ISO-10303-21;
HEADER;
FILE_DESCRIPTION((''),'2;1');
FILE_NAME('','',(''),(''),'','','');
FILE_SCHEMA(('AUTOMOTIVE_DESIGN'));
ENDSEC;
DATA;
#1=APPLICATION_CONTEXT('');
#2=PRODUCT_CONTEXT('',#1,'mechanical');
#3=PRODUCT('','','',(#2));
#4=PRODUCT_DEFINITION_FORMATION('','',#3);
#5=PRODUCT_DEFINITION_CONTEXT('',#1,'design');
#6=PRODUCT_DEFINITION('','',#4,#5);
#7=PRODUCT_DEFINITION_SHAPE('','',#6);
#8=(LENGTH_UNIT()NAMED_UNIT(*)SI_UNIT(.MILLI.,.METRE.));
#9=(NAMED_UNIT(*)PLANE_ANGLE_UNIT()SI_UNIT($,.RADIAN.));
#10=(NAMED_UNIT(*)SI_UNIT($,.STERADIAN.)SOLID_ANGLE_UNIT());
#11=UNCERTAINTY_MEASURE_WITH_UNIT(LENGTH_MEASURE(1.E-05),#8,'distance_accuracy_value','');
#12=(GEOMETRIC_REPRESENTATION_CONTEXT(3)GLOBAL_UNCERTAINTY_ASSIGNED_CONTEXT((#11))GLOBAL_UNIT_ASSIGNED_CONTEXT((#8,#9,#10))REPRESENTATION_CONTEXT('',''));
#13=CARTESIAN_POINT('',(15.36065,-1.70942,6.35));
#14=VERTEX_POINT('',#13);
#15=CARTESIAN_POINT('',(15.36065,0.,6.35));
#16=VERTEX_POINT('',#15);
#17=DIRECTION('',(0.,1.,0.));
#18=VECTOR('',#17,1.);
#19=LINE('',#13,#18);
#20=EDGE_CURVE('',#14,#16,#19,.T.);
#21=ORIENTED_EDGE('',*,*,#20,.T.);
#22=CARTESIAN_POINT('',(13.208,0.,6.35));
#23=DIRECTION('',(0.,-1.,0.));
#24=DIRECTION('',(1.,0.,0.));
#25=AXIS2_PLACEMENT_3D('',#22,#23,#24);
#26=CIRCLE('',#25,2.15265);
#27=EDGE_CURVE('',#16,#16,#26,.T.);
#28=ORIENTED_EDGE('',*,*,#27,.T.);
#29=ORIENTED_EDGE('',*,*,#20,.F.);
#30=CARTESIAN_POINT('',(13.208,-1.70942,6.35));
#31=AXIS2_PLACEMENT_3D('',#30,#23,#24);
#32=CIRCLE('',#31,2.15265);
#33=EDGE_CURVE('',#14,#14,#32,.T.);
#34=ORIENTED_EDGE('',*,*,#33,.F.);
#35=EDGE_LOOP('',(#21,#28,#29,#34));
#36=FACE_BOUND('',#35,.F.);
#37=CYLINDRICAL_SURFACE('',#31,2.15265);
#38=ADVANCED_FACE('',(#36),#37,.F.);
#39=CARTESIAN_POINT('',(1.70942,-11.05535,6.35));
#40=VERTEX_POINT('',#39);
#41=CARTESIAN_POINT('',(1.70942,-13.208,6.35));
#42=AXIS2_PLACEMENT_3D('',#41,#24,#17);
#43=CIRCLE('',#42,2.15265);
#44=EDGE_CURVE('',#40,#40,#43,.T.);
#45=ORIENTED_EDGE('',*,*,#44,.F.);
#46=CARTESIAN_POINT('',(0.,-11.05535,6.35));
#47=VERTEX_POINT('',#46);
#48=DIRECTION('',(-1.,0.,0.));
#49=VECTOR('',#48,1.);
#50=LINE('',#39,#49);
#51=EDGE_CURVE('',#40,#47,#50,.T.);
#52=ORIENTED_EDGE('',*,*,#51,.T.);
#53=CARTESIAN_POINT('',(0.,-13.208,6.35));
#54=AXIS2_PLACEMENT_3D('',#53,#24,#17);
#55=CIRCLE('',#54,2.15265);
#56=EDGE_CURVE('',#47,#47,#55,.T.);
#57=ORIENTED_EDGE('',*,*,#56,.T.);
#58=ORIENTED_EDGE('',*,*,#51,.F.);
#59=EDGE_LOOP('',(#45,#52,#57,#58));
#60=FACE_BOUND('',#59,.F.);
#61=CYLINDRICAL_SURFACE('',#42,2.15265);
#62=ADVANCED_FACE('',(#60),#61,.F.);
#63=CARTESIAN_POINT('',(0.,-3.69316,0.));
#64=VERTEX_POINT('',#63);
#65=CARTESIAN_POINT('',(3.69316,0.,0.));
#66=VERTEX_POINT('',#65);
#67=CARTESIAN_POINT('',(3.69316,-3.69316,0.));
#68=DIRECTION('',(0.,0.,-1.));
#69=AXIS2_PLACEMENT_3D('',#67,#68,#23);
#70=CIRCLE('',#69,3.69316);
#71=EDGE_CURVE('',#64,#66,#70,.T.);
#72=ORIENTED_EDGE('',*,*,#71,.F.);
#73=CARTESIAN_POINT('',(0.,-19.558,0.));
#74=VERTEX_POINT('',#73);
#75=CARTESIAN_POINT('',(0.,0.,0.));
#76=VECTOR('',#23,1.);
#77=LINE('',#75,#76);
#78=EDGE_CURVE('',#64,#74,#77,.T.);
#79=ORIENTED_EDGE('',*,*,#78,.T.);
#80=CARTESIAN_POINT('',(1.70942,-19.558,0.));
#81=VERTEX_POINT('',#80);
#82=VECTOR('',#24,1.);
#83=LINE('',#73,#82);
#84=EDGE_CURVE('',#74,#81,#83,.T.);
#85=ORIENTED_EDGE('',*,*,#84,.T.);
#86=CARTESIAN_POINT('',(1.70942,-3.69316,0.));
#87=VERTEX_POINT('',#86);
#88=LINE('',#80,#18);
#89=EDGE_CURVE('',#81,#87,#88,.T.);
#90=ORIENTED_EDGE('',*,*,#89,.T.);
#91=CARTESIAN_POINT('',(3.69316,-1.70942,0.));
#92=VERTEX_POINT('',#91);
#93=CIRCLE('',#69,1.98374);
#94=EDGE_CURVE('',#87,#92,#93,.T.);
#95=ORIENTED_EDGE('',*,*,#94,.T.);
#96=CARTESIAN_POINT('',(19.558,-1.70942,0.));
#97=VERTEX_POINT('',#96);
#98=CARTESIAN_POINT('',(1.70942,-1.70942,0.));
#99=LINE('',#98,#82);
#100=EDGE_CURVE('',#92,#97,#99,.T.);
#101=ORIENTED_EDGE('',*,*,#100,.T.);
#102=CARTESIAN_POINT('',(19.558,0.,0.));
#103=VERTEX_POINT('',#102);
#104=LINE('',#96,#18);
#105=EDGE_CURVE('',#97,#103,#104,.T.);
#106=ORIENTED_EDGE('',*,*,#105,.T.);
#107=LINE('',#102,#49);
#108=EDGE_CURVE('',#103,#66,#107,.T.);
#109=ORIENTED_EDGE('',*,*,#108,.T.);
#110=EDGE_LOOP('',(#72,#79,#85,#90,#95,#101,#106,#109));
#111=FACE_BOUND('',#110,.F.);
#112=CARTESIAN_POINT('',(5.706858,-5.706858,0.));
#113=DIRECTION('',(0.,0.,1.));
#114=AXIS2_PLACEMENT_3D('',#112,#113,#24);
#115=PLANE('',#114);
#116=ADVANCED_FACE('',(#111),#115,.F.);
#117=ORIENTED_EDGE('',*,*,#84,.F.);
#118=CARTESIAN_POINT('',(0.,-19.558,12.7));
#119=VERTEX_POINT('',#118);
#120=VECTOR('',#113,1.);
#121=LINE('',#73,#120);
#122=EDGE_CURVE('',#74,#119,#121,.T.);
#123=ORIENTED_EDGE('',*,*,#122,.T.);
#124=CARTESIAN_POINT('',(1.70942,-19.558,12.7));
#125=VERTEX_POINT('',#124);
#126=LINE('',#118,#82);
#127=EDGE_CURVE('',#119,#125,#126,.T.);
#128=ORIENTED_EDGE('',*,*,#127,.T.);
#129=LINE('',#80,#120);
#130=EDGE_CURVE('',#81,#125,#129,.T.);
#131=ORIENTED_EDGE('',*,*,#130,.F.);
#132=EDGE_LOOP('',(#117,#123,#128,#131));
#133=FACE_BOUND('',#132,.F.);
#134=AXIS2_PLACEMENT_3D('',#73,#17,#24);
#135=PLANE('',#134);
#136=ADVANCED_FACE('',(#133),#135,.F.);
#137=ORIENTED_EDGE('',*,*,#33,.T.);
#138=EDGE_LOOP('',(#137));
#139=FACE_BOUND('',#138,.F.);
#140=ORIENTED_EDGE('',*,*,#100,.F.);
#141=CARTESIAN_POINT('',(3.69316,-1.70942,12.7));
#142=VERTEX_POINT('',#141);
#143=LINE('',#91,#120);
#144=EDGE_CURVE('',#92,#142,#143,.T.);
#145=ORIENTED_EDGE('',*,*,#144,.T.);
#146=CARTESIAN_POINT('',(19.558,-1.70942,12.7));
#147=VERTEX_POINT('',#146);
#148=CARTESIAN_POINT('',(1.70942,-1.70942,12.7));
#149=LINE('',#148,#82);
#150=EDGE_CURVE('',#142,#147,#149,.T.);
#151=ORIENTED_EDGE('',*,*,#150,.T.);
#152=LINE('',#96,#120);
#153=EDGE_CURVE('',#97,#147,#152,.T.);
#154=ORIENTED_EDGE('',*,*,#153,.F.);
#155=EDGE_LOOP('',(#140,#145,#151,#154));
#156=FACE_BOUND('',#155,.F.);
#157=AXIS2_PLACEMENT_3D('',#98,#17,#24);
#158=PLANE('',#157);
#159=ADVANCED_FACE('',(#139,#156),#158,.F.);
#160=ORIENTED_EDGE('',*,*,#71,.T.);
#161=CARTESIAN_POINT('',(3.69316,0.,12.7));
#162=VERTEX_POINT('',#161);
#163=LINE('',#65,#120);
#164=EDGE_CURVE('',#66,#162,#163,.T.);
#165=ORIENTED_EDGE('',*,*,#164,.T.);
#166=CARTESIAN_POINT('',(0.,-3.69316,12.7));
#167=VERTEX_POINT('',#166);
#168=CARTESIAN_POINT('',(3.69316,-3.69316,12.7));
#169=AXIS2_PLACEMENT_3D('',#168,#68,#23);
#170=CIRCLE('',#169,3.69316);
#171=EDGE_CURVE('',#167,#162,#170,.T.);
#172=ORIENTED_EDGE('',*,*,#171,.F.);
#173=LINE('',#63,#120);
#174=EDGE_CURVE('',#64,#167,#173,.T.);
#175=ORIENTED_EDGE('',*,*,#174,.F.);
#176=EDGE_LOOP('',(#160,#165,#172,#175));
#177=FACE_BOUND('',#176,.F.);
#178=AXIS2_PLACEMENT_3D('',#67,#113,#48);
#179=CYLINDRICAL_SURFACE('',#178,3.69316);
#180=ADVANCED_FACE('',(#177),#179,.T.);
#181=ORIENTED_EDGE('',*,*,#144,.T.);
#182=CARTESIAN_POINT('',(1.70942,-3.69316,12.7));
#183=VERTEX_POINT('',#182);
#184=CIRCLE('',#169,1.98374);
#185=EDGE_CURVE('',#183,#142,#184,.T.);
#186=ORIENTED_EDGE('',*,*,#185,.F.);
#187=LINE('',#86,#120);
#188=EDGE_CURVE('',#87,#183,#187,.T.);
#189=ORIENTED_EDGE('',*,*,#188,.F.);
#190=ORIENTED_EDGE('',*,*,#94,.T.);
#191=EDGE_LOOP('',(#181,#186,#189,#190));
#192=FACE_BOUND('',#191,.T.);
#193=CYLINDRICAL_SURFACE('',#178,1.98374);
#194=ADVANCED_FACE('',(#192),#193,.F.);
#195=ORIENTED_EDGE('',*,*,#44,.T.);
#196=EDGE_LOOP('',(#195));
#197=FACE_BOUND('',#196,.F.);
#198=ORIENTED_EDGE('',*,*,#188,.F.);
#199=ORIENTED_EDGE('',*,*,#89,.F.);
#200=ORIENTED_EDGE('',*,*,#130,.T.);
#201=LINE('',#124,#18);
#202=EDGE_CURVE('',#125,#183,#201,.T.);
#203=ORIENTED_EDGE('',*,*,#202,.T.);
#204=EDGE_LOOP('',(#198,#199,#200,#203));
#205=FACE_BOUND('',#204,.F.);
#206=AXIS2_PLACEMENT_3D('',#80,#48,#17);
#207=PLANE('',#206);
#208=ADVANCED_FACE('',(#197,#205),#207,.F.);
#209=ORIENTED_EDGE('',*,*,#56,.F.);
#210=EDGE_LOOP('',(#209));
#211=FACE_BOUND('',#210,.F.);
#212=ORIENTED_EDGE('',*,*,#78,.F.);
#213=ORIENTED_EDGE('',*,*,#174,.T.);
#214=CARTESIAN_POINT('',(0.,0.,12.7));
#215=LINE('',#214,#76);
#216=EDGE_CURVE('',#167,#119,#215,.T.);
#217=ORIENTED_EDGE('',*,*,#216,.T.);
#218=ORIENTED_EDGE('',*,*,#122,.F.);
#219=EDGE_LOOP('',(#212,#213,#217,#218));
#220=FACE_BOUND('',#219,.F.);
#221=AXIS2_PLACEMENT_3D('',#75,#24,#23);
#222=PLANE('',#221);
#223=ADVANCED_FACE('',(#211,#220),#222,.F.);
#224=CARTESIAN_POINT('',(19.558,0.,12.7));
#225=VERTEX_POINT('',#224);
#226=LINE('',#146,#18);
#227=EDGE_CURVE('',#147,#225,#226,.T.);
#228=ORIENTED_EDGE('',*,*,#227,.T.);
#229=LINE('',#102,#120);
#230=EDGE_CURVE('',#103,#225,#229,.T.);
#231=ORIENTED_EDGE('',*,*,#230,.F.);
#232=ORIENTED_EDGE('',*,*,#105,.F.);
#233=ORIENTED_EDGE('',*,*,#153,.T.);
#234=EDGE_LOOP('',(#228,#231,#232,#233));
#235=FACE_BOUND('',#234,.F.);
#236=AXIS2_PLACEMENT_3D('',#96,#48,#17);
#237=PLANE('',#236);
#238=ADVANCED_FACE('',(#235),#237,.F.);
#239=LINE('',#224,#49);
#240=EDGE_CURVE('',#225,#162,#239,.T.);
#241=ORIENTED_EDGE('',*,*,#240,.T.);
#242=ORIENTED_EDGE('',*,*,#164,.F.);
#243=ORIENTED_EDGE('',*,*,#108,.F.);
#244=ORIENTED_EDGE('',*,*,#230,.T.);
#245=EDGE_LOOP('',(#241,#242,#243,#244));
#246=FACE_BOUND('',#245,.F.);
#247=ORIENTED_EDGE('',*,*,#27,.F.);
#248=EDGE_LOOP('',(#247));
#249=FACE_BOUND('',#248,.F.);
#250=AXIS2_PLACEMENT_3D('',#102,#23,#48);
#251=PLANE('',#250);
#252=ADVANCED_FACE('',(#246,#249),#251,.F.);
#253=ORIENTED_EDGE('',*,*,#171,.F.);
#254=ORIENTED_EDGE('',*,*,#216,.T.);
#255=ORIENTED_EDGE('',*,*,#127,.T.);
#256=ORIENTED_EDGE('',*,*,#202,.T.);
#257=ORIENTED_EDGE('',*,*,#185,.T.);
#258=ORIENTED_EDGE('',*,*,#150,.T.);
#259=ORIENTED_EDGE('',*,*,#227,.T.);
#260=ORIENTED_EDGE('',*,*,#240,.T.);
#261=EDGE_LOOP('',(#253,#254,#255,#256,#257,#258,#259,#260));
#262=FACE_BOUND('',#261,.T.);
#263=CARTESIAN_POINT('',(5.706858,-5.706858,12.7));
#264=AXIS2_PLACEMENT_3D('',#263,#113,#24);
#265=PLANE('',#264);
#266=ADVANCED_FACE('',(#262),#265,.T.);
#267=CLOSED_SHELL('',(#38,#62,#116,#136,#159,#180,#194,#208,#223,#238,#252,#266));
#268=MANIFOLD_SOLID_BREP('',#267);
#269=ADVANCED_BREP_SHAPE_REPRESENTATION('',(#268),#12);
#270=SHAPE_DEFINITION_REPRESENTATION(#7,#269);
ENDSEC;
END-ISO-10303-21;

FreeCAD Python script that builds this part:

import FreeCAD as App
import Part
import Sketcher
Q = App.Units.Quantity


def edges_at(feature, points):
    """Names of the edges that pass closest to the given points."""
    edges = feature.Shape.Edges
    near = lambda p: min(range(len(edges)), key=lambda i: edges[i].distToShape(Part.Vertex(*p))[0])
    return sorted({f"Edge{near(p) + 1}" for p in points})

doc = App.newDocument("Part")
body = doc.addObject("PartDesign::Body", "Body")

# Sketch on XY plane
sketch1 = body.newObject("Sketcher::SketchObject", "Sketch")
sketch1.AttachmentSupport = (doc.getObject("XY_Plane"), [""])
sketch1.MapMode = "FlatFace"
sketch1.addGeometry([
    Part.LineSegment(App.Vector(19.6, 0, 0), App.Vector(0, 0, 0)),  # 0
    Part.LineSegment(App.Vector(0, 0, 0), App.Vector(0, -19.6, 0)),  # 1
    Part.LineSegment(App.Vector(0, -19.6, 0), App.Vector(1.7, -19.6, 0)),  # 2
    Part.LineSegment(App.Vector(1.7, -19.6, 0), App.Vector(1.7, -1.7, 0)),  # 3
    Part.LineSegment(App.Vector(1.7, -1.7, 0), App.Vector(19.6, -1.7, 0)),  # 4
    Part.LineSegment(App.Vector(19.6, -1.7, 0), App.Vector(19.6, 0, 0)),  # 5
], False)
sketch1.addConstraint([
    Sketcher.Constraint("Coincident", 0, 2, 1, 1),
    Sketcher.Constraint("Coincident", 1, 2, 2, 1),
    Sketcher.Constraint("Coincident", 2, 2, 3, 1),
    Sketcher.Constraint("Coincident", 3, 2, 4, 1),
    Sketcher.Constraint("Coincident", 4, 2, 5, 1),
    Sketcher.Constraint("Coincident", 5, 2, 0, 1),
    Sketcher.Constraint("Horizontal", 0),
    Sketcher.Constraint("Vertical", 1),
    Sketcher.Constraint("Horizontal", 2),
    Sketcher.Constraint("Vertical", 3),
    Sketcher.Constraint("Horizontal", 4),
    Sketcher.Constraint("Vertical", 5),
    Sketcher.Constraint("Coincident", 0, 2, -1, 1),
    Sketcher.Constraint("Equal", 0, 1),
    Sketcher.Constraint("Equal", 4, 3),
    Sketcher.Constraint("DistanceX", 0, 2, 0, 1, Q("0.77 in")),
    Sketcher.Constraint("DistanceX", 2, 1, 2, 2, Q("0.0673 in")),
])
pad1 = body.newObject("PartDesign::Pad", "Pad")
pad1.Profile = sketch1
pad1.Length = Q("0.5 in")
doc.recompute()

fillet = body.newObject("PartDesign::Fillet", "Fillet")
fillet.Base = (pad1, edges_at(pad1, [(1.709, -1.709, 6.35)]))
fillet.Radius = Q("0.0781 in")
doc.recompute()

fillet2 = body.newObject("PartDesign::Fillet", "Fillet001")
fillet2.Base = (fillet, edges_at(fillet, [(0, 0, 6.35)]))
fillet2.Radius = Q("0.1454 in")

# Sketch on XZ plane
sketch2 = body.newObject("Sketcher::SketchObject", "Sketch001")
sketch2.AttachmentSupport = (doc.getObject("XZ_Plane"), [""])
sketch2.MapMode = "FlatFace"
sketch2.AttachmentOffset = App.Placement(App.Vector(0, 0, 0.0673 * 25.4), App.Rotation())
sketch2.addGeometry(Part.Circle(App.Vector(13.2, 6.3, 0), App.Vector(0, 0, 1), 2.2), False)
sketch2.addConstraint([
    Sketcher.Constraint("Diameter", 0, Q("0.1695 in")),
    Sketcher.Constraint("DistanceX", -1, 1, 0, 3, Q("0.52 in")),
    Sketcher.Constraint("DistanceY", -1, 1, 0, 3, Q("0.25 in")),
])
pocket1 = body.newObject("PartDesign::Pocket", "Pocket")
pocket1.Profile = sketch2
pocket1.Type = "ThroughAll"

# Sketch on YZ plane
sketch3 = body.newObject("Sketcher::SketchObject", "Sketch002")
sketch3.AttachmentSupport = (doc.getObject("YZ_Plane"), [""])
sketch3.MapMode = "FlatFace"
sketch3.AttachmentOffset = App.Placement(App.Vector(0, 0, 0.0673 * 25.4), App.Rotation())
sketch3.addGeometry(Part.Circle(App.Vector(-13.2, 6.3, 0), App.Vector(0, 0, 1), 2.2), False)
sketch3.addConstraint([
    Sketcher.Constraint("Diameter", 0, Q("0.1695 in")),
    Sketcher.Constraint("DistanceX", 0, 3, -1, 1, Q("0.52 in")),
    Sketcher.Constraint("DistanceY", -1, 1, 0, 3, Q("0.25 in")),
])
pocket2 = body.newObject("PartDesign::Pocket", "Pocket001")
pocket2.Profile = sketch3
pocket2.Type = "ThroughAll"

doc.recompute()
